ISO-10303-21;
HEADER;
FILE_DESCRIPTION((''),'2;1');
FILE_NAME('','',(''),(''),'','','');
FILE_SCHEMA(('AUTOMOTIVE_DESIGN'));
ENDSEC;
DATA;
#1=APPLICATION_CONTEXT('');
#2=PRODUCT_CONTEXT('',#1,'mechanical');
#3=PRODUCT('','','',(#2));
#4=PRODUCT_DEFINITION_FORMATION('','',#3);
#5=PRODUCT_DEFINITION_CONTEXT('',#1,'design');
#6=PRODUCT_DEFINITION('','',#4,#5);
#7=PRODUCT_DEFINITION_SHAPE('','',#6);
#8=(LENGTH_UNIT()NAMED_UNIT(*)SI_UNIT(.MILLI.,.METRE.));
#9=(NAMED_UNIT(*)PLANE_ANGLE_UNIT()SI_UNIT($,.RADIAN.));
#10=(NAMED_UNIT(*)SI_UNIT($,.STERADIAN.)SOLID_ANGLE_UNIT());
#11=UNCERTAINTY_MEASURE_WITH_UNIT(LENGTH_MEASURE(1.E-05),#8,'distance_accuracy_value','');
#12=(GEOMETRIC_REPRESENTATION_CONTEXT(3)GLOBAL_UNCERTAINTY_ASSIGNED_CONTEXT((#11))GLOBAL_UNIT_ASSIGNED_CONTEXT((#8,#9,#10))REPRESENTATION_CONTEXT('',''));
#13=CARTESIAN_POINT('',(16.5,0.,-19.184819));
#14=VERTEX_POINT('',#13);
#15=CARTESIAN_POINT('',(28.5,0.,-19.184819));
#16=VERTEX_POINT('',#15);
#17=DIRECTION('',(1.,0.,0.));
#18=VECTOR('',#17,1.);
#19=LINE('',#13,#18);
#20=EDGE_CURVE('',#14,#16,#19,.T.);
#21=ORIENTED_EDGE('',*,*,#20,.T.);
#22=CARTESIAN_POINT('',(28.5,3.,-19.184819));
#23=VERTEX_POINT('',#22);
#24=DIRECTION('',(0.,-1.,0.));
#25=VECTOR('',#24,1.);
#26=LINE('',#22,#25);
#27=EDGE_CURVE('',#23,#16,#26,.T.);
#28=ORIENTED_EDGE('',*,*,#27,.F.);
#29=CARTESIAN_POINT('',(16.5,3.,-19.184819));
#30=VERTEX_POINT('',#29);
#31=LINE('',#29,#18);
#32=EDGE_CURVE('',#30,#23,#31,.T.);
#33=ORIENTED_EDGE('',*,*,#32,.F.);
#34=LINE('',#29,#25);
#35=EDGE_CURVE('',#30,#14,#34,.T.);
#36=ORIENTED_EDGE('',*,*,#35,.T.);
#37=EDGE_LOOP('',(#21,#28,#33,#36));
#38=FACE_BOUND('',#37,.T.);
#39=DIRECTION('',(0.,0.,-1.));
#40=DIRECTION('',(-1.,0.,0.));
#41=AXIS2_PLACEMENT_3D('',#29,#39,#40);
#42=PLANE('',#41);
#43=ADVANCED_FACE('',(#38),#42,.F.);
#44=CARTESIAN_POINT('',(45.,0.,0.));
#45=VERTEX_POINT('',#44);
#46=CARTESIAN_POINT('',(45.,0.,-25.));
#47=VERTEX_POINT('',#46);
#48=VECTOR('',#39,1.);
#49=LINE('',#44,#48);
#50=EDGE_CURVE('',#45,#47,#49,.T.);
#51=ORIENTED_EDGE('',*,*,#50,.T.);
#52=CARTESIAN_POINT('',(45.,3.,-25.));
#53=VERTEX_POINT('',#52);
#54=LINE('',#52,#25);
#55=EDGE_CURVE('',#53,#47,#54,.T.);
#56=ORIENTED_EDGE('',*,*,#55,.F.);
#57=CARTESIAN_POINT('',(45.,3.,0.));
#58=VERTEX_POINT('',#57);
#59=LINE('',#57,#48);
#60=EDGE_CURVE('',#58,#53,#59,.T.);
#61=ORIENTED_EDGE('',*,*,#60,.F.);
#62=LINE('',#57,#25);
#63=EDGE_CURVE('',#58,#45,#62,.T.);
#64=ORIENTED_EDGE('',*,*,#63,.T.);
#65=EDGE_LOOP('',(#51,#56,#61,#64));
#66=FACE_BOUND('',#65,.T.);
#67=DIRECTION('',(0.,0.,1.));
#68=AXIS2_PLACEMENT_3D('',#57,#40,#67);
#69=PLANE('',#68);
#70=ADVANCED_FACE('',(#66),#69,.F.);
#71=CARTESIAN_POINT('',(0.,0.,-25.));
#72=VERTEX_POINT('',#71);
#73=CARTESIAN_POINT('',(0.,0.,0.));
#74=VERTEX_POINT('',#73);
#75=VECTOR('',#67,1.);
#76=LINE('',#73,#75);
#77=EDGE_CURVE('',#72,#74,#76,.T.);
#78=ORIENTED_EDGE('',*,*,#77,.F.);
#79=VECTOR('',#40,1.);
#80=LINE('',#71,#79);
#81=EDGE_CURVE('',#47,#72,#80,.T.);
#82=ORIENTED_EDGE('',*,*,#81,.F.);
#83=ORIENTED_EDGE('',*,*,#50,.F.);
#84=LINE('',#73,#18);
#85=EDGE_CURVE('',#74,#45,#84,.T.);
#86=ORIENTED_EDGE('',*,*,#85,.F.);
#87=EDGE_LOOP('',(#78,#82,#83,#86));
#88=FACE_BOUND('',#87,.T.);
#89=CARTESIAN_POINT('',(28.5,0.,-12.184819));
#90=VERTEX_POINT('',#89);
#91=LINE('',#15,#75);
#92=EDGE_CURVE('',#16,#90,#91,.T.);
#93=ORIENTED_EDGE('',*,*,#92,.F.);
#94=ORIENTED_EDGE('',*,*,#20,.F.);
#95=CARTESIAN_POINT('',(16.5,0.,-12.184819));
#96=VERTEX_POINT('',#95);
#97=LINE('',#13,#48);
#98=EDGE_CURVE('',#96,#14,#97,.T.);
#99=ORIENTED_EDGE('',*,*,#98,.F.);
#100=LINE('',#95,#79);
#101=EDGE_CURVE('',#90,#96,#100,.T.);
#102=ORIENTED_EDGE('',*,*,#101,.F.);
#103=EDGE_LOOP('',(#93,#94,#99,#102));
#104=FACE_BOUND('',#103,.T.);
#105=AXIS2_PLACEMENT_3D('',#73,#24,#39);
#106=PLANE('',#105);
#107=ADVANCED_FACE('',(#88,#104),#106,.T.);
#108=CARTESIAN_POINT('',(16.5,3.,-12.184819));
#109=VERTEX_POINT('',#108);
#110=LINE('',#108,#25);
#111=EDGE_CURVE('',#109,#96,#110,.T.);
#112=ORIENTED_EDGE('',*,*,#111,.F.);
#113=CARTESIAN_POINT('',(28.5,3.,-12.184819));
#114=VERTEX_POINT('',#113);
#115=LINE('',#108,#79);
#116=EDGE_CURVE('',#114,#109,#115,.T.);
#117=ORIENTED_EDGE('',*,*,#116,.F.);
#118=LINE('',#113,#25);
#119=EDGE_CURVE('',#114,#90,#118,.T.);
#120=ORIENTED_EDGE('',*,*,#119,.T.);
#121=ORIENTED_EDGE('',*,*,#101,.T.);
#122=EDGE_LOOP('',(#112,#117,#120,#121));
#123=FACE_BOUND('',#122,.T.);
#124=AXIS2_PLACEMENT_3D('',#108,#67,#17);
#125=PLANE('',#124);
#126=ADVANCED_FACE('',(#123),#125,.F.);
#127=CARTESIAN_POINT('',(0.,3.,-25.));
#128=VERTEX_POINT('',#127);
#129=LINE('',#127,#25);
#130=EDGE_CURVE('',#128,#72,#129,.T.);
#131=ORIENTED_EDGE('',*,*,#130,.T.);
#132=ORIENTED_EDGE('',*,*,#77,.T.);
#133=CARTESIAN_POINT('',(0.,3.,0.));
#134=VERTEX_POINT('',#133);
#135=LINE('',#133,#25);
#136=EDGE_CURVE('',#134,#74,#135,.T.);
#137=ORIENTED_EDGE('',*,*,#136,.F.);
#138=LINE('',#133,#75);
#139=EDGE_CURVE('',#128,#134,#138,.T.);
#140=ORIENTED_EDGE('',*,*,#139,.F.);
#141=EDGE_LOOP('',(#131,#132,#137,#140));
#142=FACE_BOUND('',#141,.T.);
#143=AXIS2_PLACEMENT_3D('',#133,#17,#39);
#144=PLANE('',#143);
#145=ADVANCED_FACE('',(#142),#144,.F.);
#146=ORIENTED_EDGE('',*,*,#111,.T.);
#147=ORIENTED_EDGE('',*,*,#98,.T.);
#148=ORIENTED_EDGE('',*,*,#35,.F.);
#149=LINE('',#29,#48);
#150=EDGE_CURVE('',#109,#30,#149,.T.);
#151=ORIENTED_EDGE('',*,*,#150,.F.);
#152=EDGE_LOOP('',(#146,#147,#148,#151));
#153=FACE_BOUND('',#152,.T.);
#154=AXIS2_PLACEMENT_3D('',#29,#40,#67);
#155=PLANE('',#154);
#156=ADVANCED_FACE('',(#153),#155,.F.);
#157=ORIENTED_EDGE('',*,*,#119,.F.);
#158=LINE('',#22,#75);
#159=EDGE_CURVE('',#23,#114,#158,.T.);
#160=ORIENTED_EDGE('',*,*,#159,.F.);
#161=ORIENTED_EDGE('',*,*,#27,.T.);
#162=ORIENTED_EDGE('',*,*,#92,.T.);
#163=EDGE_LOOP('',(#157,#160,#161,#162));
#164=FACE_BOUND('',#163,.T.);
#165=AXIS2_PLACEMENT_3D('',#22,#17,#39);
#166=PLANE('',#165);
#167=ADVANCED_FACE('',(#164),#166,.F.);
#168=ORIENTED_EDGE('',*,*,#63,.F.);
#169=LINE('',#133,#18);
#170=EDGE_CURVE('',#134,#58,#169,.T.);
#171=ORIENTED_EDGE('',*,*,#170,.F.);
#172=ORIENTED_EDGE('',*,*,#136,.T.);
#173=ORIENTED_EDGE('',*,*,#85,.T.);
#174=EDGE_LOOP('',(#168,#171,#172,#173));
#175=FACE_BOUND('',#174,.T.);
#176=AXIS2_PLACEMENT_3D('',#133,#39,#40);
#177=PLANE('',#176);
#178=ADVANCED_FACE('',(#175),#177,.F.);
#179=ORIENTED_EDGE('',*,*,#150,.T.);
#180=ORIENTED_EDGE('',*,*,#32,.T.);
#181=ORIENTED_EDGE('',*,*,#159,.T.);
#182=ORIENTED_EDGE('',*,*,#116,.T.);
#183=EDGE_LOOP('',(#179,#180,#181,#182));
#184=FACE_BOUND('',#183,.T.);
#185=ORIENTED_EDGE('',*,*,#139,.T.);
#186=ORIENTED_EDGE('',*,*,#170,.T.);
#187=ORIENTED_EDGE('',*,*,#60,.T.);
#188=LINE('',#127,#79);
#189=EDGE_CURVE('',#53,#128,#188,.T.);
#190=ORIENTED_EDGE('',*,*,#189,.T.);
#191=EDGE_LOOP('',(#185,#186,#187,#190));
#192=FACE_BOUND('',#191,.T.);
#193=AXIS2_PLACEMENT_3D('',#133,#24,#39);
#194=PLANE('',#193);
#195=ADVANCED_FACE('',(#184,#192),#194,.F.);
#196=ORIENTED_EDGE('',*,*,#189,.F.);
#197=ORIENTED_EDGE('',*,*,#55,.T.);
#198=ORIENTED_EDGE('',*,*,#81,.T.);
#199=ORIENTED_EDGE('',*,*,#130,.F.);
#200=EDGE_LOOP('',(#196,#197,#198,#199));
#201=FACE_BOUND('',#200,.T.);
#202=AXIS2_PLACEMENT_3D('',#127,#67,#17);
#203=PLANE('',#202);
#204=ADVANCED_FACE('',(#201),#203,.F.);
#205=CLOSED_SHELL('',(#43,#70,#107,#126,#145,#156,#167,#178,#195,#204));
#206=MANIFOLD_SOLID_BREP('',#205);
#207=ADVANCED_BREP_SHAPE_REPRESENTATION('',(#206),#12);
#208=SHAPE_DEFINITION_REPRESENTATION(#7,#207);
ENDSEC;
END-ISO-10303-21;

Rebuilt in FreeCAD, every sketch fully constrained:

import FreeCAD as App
import Part
import Sketcher
from FreeCAD import Vector

doc = App.newDocument("Part")
body = doc.addObject("PartDesign::Body", "Body")

sketch1 = body.newObject("Sketcher::SketchObject", "Sketch")
sketch1.AttachmentSupport = (doc.getObject("XZ_Plane"), [""])
sketch1.MapMode = "FlatFace"
sketch1.addGeometry([
    Part.LineSegment(Vector(0, -25, 0), Vector(0, 0, 0)),
    Part.LineSegment(Vector(0, 0, 0), Vector(45, 0, 0)),
    Part.LineSegment(Vector(45, 0, 0), Vector(45, -25, 0)),
    Part.LineSegment(Vector(45, -25, 0), Vector(0, -25, 0)),
], False)
sketch1.addConstraint([
    Sketcher.Constraint("Coincident", 0, 2, 1, 1),
    Sketcher.Constraint("Coincident", 1, 2, 2, 1),
    Sketcher.Constraint("Coincident", 2, 2, 3, 1),
    Sketcher.Constraint("Coincident", 3, 2, 0, 1),
    Sketcher.Constraint("Vertical", 0),
    Sketcher.Constraint("Horizontal", 1),
    Sketcher.Constraint("Vertical", 2),
    Sketcher.Constraint("Horizontal", 3),
    Sketcher.Constraint("Coincident", 0, 2, -1, 1),
    Sketcher.Constraint("DistanceX", 1, 1, 1, 2, 45.0),
    Sketcher.Constraint("DistanceY", 0, 1, 0, 2, 25.0),
])
pad1 = body.newObject("PartDesign::Pad", "Pad")
pad1.Profile = sketch1
pad1.Length = 3
pad1.Reversed = True

sketch2 = body.newObject("Sketcher::SketchObject", "Sketch001")
sketch2.AttachmentSupport = (doc.getObject("XZ_Plane"), [""])
sketch2.MapMode = "FlatFace"
sketch2.addGeometry([
    Part.LineSegment(Vector(16.5, -12.184819, 0), Vector(16.5, -19.184819, 0)),
    Part.LineSegment(Vector(16.5, -19.184819, 0), Vector(28.5, -19.184819, 0)),
    Part.LineSegment(Vector(28.5, -19.184819, 0), Vector(28.5, -12.184819, 0)),
    Part.LineSegment(Vector(28.5, -12.184819, 0), Vector(16.5, -12.184819, 0)),
], False)
sketch2.addConstraint([
    Sketcher.Constraint("Coincident", 0, 2, 1, 1),
    Sketcher.Constraint("Coincident", 1, 2, 2, 1),
    Sketcher.Constraint("Coincident", 2, 2, 3, 1),
    Sketcher.Constraint("Coincident", 3, 2, 0, 1),
    Sketcher.Constraint("Vertical", 0),
    Sketcher.Constraint("Horizontal", 1),
    Sketcher.Constraint("Vertical", 2),
    Sketcher.Constraint("Horizontal", 3),
    Sketcher.Constraint("DistanceX", 1, 1, 1, 2, 12.0),
    Sketcher.Constraint("DistanceY", 0, 2, 0, 1, 7.0),
    Sketcher.Constraint("DistanceX", -1, 1, 0, 2, 16.5),
    Sketcher.Constraint("DistanceY", 0, 2, -1, 1, 19.184819),
])
pocket1 = body.newObject("PartDesign::Pocket", "Pocket")
pocket1.Profile = sketch2
pocket1.Length = 3

doc.recompute()
